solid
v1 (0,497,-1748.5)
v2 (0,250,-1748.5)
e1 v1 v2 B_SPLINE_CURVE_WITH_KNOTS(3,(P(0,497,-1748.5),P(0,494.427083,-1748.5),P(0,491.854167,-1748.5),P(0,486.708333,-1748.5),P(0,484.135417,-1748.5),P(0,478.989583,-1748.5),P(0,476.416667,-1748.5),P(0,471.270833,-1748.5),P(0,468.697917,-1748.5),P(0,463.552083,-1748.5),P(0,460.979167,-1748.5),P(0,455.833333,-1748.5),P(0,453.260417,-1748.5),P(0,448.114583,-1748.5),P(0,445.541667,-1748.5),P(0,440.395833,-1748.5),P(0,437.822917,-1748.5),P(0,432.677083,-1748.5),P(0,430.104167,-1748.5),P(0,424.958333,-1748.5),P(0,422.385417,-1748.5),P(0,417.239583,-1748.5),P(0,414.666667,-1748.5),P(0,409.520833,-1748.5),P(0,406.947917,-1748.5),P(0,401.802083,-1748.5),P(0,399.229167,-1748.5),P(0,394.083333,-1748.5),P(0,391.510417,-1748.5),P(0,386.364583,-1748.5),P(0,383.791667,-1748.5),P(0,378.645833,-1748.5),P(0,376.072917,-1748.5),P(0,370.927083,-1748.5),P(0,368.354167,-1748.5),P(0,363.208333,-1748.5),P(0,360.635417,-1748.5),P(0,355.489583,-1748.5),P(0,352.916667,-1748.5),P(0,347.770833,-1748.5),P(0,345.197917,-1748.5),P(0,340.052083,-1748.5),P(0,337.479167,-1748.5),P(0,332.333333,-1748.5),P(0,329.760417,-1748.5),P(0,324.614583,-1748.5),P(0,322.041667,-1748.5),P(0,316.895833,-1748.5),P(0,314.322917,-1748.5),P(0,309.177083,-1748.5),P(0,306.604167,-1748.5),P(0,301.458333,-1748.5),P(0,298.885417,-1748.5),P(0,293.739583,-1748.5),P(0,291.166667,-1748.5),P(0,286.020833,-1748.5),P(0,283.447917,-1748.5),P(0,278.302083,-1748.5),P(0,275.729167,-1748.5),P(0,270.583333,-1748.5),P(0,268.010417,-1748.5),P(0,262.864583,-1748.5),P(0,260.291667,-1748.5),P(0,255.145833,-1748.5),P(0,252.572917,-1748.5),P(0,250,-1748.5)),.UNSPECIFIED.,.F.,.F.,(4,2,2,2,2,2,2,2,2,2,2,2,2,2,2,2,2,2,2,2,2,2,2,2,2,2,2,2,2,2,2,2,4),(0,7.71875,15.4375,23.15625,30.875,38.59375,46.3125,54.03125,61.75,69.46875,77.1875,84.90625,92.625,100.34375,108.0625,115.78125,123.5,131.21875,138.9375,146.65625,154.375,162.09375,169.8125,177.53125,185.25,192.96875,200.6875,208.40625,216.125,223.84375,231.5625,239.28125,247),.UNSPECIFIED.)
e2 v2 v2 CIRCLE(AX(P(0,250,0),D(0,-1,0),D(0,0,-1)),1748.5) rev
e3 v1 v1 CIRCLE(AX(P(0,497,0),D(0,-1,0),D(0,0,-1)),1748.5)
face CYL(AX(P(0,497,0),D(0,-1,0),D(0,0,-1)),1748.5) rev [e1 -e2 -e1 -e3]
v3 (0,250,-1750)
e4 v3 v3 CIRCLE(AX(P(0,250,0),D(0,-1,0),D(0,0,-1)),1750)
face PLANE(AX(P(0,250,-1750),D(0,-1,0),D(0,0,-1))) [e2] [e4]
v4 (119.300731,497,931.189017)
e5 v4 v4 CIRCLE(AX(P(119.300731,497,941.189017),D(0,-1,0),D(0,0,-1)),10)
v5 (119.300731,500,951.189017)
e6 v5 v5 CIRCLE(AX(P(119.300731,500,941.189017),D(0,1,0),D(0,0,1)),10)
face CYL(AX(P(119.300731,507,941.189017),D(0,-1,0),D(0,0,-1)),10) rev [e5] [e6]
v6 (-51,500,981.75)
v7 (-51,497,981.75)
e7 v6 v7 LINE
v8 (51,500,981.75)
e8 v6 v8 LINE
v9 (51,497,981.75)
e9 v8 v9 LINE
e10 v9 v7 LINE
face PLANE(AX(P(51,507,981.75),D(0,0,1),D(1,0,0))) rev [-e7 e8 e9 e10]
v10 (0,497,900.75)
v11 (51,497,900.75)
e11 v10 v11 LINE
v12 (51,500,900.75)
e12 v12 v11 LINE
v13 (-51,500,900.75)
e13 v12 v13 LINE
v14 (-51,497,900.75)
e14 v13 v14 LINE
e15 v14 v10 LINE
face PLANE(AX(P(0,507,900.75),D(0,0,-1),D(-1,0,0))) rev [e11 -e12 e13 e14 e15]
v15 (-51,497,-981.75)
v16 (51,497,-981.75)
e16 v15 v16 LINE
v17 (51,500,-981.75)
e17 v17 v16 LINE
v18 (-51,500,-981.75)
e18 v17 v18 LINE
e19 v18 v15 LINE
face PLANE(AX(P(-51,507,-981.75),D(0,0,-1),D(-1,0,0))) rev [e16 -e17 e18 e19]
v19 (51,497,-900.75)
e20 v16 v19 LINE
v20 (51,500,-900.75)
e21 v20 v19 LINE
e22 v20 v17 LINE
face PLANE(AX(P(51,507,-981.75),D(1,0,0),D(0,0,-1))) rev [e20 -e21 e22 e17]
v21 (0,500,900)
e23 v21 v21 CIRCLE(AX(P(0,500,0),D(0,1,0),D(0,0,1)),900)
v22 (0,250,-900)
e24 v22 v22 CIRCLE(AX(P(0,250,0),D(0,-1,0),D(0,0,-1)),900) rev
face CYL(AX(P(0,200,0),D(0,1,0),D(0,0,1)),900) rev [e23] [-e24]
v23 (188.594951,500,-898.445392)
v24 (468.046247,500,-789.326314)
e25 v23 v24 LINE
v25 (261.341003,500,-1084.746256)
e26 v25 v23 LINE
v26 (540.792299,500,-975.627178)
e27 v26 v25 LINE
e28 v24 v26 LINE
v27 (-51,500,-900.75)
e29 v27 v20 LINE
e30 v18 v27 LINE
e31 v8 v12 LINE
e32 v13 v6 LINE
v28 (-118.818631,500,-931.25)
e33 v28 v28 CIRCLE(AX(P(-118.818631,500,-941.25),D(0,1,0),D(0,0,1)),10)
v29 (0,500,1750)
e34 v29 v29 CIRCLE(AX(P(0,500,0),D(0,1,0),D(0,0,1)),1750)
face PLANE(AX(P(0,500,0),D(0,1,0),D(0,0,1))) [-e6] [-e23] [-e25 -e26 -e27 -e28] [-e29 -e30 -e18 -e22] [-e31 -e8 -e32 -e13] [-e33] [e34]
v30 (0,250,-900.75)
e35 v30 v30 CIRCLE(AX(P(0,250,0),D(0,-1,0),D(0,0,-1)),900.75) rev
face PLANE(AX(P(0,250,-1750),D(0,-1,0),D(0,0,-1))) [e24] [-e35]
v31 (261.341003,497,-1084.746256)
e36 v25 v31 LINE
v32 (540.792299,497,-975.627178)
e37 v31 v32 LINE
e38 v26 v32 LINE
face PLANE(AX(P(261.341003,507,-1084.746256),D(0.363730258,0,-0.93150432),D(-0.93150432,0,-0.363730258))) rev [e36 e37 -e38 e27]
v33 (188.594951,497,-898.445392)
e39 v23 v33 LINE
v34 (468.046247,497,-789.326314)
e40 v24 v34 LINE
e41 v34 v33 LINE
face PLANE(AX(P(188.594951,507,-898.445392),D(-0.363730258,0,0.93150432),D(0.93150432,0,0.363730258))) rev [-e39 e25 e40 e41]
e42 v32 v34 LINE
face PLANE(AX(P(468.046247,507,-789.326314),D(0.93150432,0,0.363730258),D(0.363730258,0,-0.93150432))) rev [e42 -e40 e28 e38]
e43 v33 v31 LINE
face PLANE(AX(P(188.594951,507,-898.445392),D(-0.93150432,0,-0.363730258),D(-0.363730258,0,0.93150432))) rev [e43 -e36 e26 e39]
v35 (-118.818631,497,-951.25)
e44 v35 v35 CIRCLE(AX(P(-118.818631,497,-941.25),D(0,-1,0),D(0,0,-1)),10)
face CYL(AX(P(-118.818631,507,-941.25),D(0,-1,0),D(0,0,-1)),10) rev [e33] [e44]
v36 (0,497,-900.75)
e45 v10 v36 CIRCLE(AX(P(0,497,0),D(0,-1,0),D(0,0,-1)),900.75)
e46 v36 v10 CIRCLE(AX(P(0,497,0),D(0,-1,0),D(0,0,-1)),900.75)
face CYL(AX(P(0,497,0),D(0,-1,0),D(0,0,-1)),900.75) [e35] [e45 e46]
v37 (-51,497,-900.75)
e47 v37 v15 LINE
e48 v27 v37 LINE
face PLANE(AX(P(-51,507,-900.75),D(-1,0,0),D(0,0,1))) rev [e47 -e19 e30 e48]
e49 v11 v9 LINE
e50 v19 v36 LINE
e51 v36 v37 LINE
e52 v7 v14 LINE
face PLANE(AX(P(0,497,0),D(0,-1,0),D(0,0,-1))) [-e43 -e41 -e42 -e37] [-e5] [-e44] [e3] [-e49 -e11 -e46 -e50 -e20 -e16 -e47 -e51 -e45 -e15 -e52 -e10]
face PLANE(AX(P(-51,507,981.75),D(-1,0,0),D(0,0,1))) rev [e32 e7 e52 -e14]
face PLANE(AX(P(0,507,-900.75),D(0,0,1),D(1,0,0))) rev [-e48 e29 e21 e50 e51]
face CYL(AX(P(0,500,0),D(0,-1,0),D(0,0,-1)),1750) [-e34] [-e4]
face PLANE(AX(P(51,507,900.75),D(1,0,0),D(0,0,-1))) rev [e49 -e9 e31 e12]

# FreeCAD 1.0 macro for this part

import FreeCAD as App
import Part
import Sketcher

V = App.Vector


def add_polygon(sketch, points):
    """Adds a closed chain of lines whose ends are joined by coincident constraints."""
    first, n = sketch.GeometryCount, len(points)
    for a, b in zip(points, points[1:] + points[:1]):
        sketch.addGeometry(Part.LineSegment(App.Vector(*a, 0), App.Vector(*b, 0)), False)
    for i in range(n):
        sketch.addConstraint(Sketcher.Constraint("Coincident", first + i, 2, first + (i + 1) % n, 1))

doc = App.newDocument("Part")
body = doc.addObject("PartDesign::Body", "Body")

sketch1 = body.newObject("Sketcher::SketchObject", "Sketch")
sketch1.AttachmentSupport = (doc.getObject("XZ_Plane"), [""])
sketch1.MapMode = "FlatFace"
sketch1.addGeometry(Part.Circle(V(0, 0, 0), V(0, 0, 1), 1750), False)
sketch1.addConstraint(Sketcher.Constraint("Coincident", 0, 3, -1, 1))
sketch1.addConstraint(Sketcher.Constraint("Diameter", 0, 3500.0))
pad1 = body.newObject("PartDesign::Pad", "Pad")
pad1.Profile = sketch1
pad1.Length = 500
pad1.Reversed = True

sketch2 = body.newObject("Sketcher::SketchObject", "Sketch001")
sketch2.AttachmentSupport = (doc.getObject("XZ_Plane"), [""])
sketch2.MapMode = "FlatFace"
sketch2.AttachmentOffset = App.Placement(V(0, 0, -500), App.Rotation())
sketch2.addGeometry(Part.Circle(V(0, 0, 0), V(0, 0, 1), 900), False)
sketch2.addConstraint(Sketcher.Constraint("Coincident", 0, 3, -1, 1))
sketch2.addConstraint(Sketcher.Constraint("Diameter", 0, 1800.0))
pocket1 = body.newObject("PartDesign::Pocket", "Pocket")
pocket1.Profile = sketch2
pocket1.Length = 300
pocket1.Reversed = True

sketch3 = body.newObject("Sketcher::SketchObject", "Sketch002")
sketch3.AttachmentSupport = (doc.getObject("XZ_Plane"), [""])
sketch3.MapMode = "FlatFace"
sketch3.addGeometry(Part.Circle(V(0, 0, 0), V(0, 0, 1), 600), False)
sketch3.addConstraint(Sketcher.Constraint("Coincident", 0, 3, -1, 1))
sketch3.addConstraint(Sketcher.Constraint("Diameter", 0, 1200.0))
pocket2 = body.newObject("PartDesign::Pocket", "Pocket001")
pocket2.Profile = sketch3
pocket2.Length = 300

sketch4 = body.newObject("Sketcher::SketchObject", "Sketch003")
sketch4.AttachmentSupport = (doc.getObject("XZ_Plane"), [""])
sketch4.MapMode = "FlatFace"
sketch4.addGeometry(Part.Circle(V(0, 0, 0), V(0, 0, 1), 1748), False)
sketch4.addGeometry(Part.Circle(V(0, 0, 0), V(0, 0, 1), 901), False)
sketch4.addConstraint(Sketcher.Constraint("Coincident", 0, 3, -1, 1))
sketch4.addConstraint(Sketcher.Constraint("Coincident", 1, 3, -1, 1))
sketch4.addConstraint(Sketcher.Constraint("Diameter", 0, 3497.0))
sketch4.addConstraint(Sketcher.Constraint("Diameter", 1, 1801.5))
pocket3 = body.newObject("PartDesign::Pocket", "Pocket002")
pocket3.Profile = sketch4
pocket3.Length = 497

sketch5 = body.newObject("Sketcher::SketchObject", "Sketch004")
sketch5.AttachmentSupport = (doc.getObject("XY_Plane"), [""])
sketch5.MapMode = "FlatFace"
add_polygon(sketch5, [(-1750, 250), (-1750, 0), (1750, 0), (1750, 250)])
sketch5.addConstraint(Sketcher.Constraint("Vertical", 0))
sketch5.addConstraint(Sketcher.Constraint("Horizontal", 1))
sketch5.addConstraint(Sketcher.Constraint("Vertical", 2))
sketch5.addConstraint(Sketcher.Constraint("Horizontal", 3))
sketch5.addConstraint(Sketcher.Constraint("Symmetric", 0, 2, 1, 2, -1, 1))
sketch5.addConstraint(Sketcher.Constraint("DistanceX", 1, 1, 1, 2, 3500.0))
sketch5.addConstraint(Sketcher.Constraint("DistanceY", 0, 2, 0, 1, 250.0))
pocket4 = body.newObject("PartDesign::Pocket", "Pocket003")
pocket4.Profile = sketch5
pocket4.Type = "ThroughAll"
pocket4.Midplane = True

sketch6 = body.newObject("Sketcher::SketchObject", "Sketch005")
sketch6.AttachmentSupport = (doc.getObject("XZ_Plane"), [""])
sketch6.MapMode = "FlatFace"
sketch6.AttachmentOffset = App.Placement(V(0, 0, -497), App.Rotation())
add_polygon(sketch6, [(51, 901), (51, 982), (-51, 982), (-51, 901)])
sketch6.addConstraint(Sketcher.Constraint("Vertical", 0))
sketch6.addConstraint(Sketcher.Constraint("Horizontal", 1))
sketch6.addConstraint(Sketcher.Constraint("Vertical", 2))
sketch6.addConstraint(Sketcher.Constraint("Horizontal", 3))
sketch6.addConstraint(Sketcher.Constraint("DistanceX", 1, 2, 1, 1, 102.0))
sketch6.addConstraint(Sketcher.Constraint("DistanceY", 0, 1, 0, 2, 81.0))
sketch6.addConstraint(Sketcher.Constraint("DistanceX", -1, 1, 0, 2, 51.0))
sketch6.addConstraint(Sketcher.Constraint("DistanceY", -1, 1, 0, 2, 981.75))
pocket5 = body.newObject("PartDesign::Pocket", "Pocket004")
pocket5.Profile = sketch6
pocket5.Length = 10
doc.recompute()

polarpattern = body.newObject("PartDesign::PolarPattern", "PolarPattern")
polarpattern.Originals = [pocket5]
polarpattern.Axis = (doc.getObject("Y_Axis"), [""])
polarpattern.Angle = 360
polarpattern.Occurrences = 2
body.Tip = polarpattern

sketch7 = body.newObject("Sketcher::SketchObject", "Sketch006")
sketch7.AttachmentSupport = (doc.getObject("XZ_Plane"), [""])
sketch7.MapMode = "FlatFace"
sketch7.AttachmentOffset = App.Placement(V(0, 0, -497), App.Rotation())
sketch7.addGeometry(Part.Circle(V(-119, -941, 0), V(0, 0, 1), 10), False)
sketch7.addGeometry(Part.Circle(V(119, 941, 0), V(0, 0, 1), 10), False)
sketch7.addConstraint(Sketcher.Constraint("Equal", 0, 1))
sketch7.addConstraint(Sketcher.Constraint("Diameter", 0, 20.0))
sketch7.addConstraint(Sketcher.Constraint("DistanceY", 0, 3, -1, 1, 941.25))
sketch7.addConstraint(Sketcher.Constraint("DistanceX", 0, 3, -1, 1, 118.818631))
sketch7.addConstraint(Sketcher.Constraint("DistanceX", -1, 1, 1, 3, 119.300731))
sketch7.addConstraint(Sketcher.Constraint("DistanceY", -1, 1, 1, 3, 941.189017))
pocket6 = body.newObject("PartDesign::Pocket", "Pocket005")
pocket6.Profile = sketch7
pocket6.Length = 10

sketch8 = body.newObject("Sketcher::SketchObject", "Sketch007")
sketch8.AttachmentSupport = (doc.getObject("XZ_Plane"), [""])
sketch8.MapMode = "FlatFace"
sketch8.AttachmentOffset = App.Placement(V(0, 0, -497), App.Rotation())
add_polygon(sketch8, [(468, -789), (189, -898), (261, -1085), (541, -976)])
sketch8.addConstraint(Sketcher.Constraint("Perpendicular", 0, 1))
sketch8.addConstraint(Sketcher.Constraint("Perpendicular", 1, 2))
sketch8.addConstraint(Sketcher.Constraint("Perpendicular", 2, 3))
sketch8.addConstraint(Sketcher.Constraint("Distance", 0, 300.0))
sketch8.addConstraint(Sketcher.Constraint("Distance", 1, 200.0))
sketch8.addConstraint(Sketcher.Constraint("DistanceX", -1, 1, 2, 2, 540.792299))
sketch8.addConstraint(Sketcher.Constraint("DistanceX", -1, 1, 0, 2, 188.594951))
sketch8.addConstraint(Sketcher.Constraint("DistanceY", 0, 2, -1, 1, 898.445392))
pocket7 = body.newObject("PartDesign::Pocket", "Pocket006")
pocket7.Profile = sketch8
pocket7.Length = 10

doc.recompute()
